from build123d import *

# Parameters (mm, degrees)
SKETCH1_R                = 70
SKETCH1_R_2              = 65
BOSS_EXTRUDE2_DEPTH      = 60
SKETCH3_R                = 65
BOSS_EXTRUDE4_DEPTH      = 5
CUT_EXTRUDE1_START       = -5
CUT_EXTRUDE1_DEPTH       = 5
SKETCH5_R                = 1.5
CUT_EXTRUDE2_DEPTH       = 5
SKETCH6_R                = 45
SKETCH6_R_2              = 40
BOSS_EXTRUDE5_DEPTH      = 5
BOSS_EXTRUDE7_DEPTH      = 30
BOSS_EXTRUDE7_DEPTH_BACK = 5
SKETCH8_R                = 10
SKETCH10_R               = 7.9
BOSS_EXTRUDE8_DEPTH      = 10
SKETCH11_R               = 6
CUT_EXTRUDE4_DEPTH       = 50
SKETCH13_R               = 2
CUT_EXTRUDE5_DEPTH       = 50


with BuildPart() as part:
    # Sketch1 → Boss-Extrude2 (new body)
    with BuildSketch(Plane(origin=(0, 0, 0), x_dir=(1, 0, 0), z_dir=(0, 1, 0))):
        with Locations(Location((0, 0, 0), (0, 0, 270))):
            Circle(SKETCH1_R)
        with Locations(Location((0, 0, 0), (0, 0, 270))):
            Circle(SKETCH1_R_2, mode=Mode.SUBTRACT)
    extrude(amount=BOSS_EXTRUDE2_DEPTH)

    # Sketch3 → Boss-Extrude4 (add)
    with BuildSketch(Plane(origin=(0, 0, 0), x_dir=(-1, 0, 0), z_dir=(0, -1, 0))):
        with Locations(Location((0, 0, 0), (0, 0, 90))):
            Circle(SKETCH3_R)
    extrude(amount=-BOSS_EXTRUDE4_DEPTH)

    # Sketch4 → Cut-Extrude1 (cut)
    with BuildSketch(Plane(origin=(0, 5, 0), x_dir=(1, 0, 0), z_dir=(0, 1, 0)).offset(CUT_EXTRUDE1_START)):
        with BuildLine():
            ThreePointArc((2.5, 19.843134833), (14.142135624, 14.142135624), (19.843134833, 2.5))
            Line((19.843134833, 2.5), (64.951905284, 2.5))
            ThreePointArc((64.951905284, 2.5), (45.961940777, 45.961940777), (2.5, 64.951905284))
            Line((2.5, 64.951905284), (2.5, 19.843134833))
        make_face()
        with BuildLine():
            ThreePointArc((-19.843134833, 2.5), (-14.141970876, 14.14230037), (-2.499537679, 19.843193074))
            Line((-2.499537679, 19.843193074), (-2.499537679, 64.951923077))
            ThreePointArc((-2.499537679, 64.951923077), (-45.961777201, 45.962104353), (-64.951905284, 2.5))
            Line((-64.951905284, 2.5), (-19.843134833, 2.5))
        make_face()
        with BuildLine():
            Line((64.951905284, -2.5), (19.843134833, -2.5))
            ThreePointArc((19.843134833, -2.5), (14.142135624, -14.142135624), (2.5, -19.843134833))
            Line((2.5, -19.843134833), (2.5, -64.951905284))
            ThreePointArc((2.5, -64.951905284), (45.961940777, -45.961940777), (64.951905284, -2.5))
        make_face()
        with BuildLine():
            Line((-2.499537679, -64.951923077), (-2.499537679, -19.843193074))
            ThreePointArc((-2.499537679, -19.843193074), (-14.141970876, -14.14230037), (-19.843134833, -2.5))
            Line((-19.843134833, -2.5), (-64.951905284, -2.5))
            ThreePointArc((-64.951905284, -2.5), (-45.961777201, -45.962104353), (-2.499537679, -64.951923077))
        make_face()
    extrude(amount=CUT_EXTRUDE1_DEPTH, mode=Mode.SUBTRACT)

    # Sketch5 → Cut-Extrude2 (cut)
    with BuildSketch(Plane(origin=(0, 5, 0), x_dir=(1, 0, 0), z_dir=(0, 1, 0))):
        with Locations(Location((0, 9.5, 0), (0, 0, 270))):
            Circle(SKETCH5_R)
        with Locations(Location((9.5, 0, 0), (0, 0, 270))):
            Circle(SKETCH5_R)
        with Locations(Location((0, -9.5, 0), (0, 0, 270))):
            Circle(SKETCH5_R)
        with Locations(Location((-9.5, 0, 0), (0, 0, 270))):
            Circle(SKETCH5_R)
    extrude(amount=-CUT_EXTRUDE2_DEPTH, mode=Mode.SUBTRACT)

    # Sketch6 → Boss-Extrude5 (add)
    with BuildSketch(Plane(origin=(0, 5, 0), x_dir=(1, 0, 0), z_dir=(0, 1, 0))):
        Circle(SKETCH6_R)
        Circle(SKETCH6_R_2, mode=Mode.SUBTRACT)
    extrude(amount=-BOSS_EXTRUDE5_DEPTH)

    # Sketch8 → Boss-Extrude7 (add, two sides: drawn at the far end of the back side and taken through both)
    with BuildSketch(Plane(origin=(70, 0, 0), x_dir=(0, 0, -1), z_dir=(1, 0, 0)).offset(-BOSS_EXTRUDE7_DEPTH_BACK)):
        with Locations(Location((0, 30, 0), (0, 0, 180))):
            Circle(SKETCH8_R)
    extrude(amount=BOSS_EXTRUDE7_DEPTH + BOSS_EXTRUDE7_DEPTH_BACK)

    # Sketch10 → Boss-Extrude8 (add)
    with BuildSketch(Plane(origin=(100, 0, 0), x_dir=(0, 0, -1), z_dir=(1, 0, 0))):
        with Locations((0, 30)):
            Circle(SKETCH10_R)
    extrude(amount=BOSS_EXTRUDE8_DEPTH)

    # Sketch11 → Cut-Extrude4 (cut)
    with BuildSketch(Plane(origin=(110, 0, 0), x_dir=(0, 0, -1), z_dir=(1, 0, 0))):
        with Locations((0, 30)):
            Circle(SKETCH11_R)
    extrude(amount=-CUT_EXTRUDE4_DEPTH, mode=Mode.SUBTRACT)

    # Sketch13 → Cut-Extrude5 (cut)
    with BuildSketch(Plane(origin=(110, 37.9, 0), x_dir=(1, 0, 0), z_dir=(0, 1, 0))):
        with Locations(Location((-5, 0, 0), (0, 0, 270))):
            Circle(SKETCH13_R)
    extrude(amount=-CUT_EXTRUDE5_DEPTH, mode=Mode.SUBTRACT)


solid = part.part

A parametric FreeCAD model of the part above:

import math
import FreeCAD as App
import Part
import Sketcher
from FreeCAD import Vector
Q = App.Units.Quantity

doc = App.newDocument("Part")
params = doc.addObject("Spreadsheet::Sheet", "Params")
for row, (alias, value) in enumerate([
    ("sketch1_diameter", "140 mm"),
    ("sketch1_diameter2", "130 mm"),
    ("pad1_length", "60 mm"),
    ("sketch2_diameter", "130 mm"),
    ("pad2_length", "5 mm"),
    ("sketch3_radius", "20 mm"),
    ("sketch3_radius2", "65 mm"),
    ("pocket1_length", "5 mm"),
    ("sketch4_diameter", "3 mm"),
    ("pocket2_length", "5 mm"),
    ("sketch5_diameter", "90 mm"),
    ("sketch5_diameter2", "80 mm"),
    ("pad3_length", "5 mm"),
    ("sketch6_diameter", "20 mm"),
    ("pad4_length", "30 mm"),
    ("pad4_length2", "5 mm"),
    ("sketch7_diameter", "15.8 mm"),
    ("pad5_length", "10 mm"),
    ("sketch8_diameter", "12 mm"),
    ("pocket3_length", "50 mm"),
    ("sketch9_diameter", "4 mm"),
    ("pocket4_length", "50 mm"),
], start=1):
    params.set(f"A{row}", alias)
    params.set(f"B{row}", "=" + value)
    params.setAlias(f"B{row}", alias)

body = doc.addObject("PartDesign::Body", "Body")

# Sketch on XZ plane
sketch1 = body.newObject("Sketcher::SketchObject", "Sketch")
sketch1.AttachmentSupport = (doc.getObject("XZ_Plane"), [""])
sketch1.MapMode = "FlatFace"
sketch1.addGeometry(Part.Circle(Vector(0, 0, 0), Vector(0, 0, 1), 70), False)
sketch1.addGeometry(Part.Circle(Vector(0, 0, 0), Vector(0, 0, 1), 65), False)
sketch1.addConstraint(Sketcher.Constraint("Coincident", 0, 3, -1, 1))
sketch1.addConstraint(Sketcher.Constraint("Coincident", 1, 3, -1, 1))
sketch1.addConstraint(Sketcher.Constraint("Diameter", 0, Q("140 mm")))
sketch1.addConstraint(Sketcher.Constraint("Diameter", 1, Q("130 mm")))
sketch1.setExpression("Constraints[2]", "Params.sketch1_diameter")
sketch1.setExpression("Constraints[3]", "Params.sketch1_diameter2")
pad1 = body.newObject("PartDesign::Pad", "Pad")
pad1.Profile = sketch1
pad1.setExpression("Length", "Params.pad1_length")
pad1.Reversed = True

# Sketch on XZ plane
sketch2 = body.newObject("Sketcher::SketchObject", "Sketch001")
sketch2.AttachmentSupport = (doc.getObject("XZ_Plane"), [""])
sketch2.MapMode = "FlatFace"
sketch2.addGeometry(Part.Circle(Vector(0, 0, 0), Vector(0, 0, 1), 65), False)
sketch2.addConstraint(Sketcher.Constraint("Coincident", 0, 3, -1, 1))
sketch2.addConstraint(Sketcher.Constraint("Diameter", 0, Q("130 mm")))
sketch2.setExpression("Constraints[1]", "Params.sketch2_diameter")
pad2 = body.newObject("PartDesign::Pad", "Pad001")
pad2.Profile = sketch2
pad2.setExpression("Length", "Params.pad2_length")
pad2.Reversed = True

# Sketch on XZ plane
sketch3 = body.newObject("Sketcher::SketchObject", "Sketch002")
sketch3.AttachmentSupport = (doc.getObject("XZ_Plane"), [""])
sketch3.MapMode = "FlatFace"
sketch3.addGeometry(Part.ArcOfCircle(Part.Circle(Vector(0, 0, 0), Vector(0, 0, 1), 20), math.radians(-83), math.radians(-7)), False)
sketch3.addGeometry(Part.LineSegment(Vector(20, -2, 0), Vector(65, -2, 0)), False)
sketch3.addGeometry(Part.ArcOfCircle(Part.Circle(Vector(0, 0, 0), Vector(0, 0, 1), 65), math.radians(-88), math.radians(-2)), False)
sketch3.addGeometry(Part.LineSegment(Vector(2, -65, 0), Vector(2, -20, 0)), False)
sketch3.addGeometry(Part.ArcOfCircle(Part.Circle(Vector(0, 0, 0), Vector(0, 0, 1), 20), math.radians(-173), math.radians(-97)), False)
sketch3.addGeometry(Part.LineSegment(Vector(-2, -20, 0), Vector(-2, -65, 0)), False)
sketch3.addGeometry(Part.ArcOfCircle(Part.Circle(Vector(0, 0, 0), Vector(0, 0, 1), 65), math.radians(-178), math.radians(-92)), False)
sketch3.addGeometry(Part.LineSegment(Vector(-65, -2, 0), Vector(-20, -2, 0)), False)
sketch3.addGeometry(Part.LineSegment(Vector(65, 2, 0), Vector(20, 2, 0)), False)
sketch3.addGeometry(Part.ArcOfCircle(Part.Circle(Vector(0, 0, 0), Vector(0, 0, 1), 20), math.radians(7), math.radians(83)), False)
sketch3.addGeometry(Part.LineSegment(Vector(2, 20, 0), Vector(2, 65, 0)), False)
sketch3.addGeometry(Part.ArcOfCircle(Part.Circle(Vector(0, 0, 0), Vector(0, 0, 1), 65), math.radians(2), math.radians(88)), False)
sketch3.addGeometry(Part.LineSegment(Vector(-2, 65, 0), Vector(-2, 20, 0)), False)
sketch3.addGeometry(Part.ArcOfCircle(Part.Circle(Vector(0, 0, 0), Vector(0, 0, 1), 20), math.radians(97), math.radians(173)), False)
sketch3.addGeometry(Part.LineSegment(Vector(-20, 2, 0), Vector(-65, 2, 0)), False)
sketch3.addGeometry(Part.ArcOfCircle(Part.Circle(Vector(0, 0, 0), Vector(0, 0, 1), 65), math.radians(92), math.radians(178)), False)
sketch3.addConstraint(Sketcher.Constraint("Coincident", 0, 2, 1, 1))
sketch3.addConstraint(Sketcher.Constraint("Coincident", 1, 2, 2, 2))
sketch3.addConstraint(Sketcher.Constraint("Coincident", 2, 1, 3, 1))
sketch3.addConstraint(Sketcher.Constraint("Coincident", 3, 2, 0, 1))
sketch3.addConstraint(Sketcher.Constraint("Coincident", 4, 2, 5, 1))
sketch3.addConstraint(Sketcher.Constraint("Coincident", 5, 2, 6, 2))
sketch3.addConstraint(Sketcher.Constraint("Coincident", 6, 1, 7, 1))
sketch3.addConstraint(Sketcher.Constraint("Coincident", 7, 2, 4, 1))
sketch3.addConstraint(Sketcher.Constraint("Coincident", 8, 2, 9, 1))
sketch3.addConstraint(Sketcher.Constraint("Coincident", 9, 2, 10, 1))
sketch3.addConstraint(Sketcher.Constraint("Coincident", 10, 2, 11, 2))
sketch3.addConstraint(Sketcher.Constraint("Coincident", 11, 1, 8, 1))
sketch3.addConstraint(Sketcher.Constraint("Coincident", 12, 2, 13, 1))
sketch3.addConstraint(Sketcher.Constraint("Coincident", 13, 2, 14, 1))
sketch3.addConstraint(Sketcher.Constraint("Coincident", 14, 2, 15, 2))
sketch3.addConstraint(Sketcher.Constraint("Coincident", 15, 1, 12, 1))
sketch3.addConstraint(Sketcher.Constraint("Horizontal", 1))
sketch3.addConstraint(Sketcher.Constraint("Vertical", 3))
sketch3.addConstraint(Sketcher.Constraint("Vertical", 5))
sketch3.addConstraint(Sketcher.Constraint("Horizontal", 7))
sketch3.addConstraint(Sketcher.Constraint("Horizontal", 8))
sketch3.addConstraint(Sketcher.Constraint("Vertical", 10))
sketch3.addConstraint(Sketcher.Constraint("Vertical", 12))
sketch3.addConstraint(Sketcher.Constraint("Horizontal", 14))
sketch3.addConstraint(Sketcher.Constraint("Coincident", 0, 3, -1, 1))
sketch3.addConstraint(Sketcher.Constraint("Coincident", 2, 3, -1, 1))
sketch3.addConstraint(Sketcher.Constraint("Coincident", 4, 3, -1, 1))
sketch3.addConstraint(Sketcher.Constraint("Coincident", 6, 3, -1, 1))
sketch3.addConstraint(Sketcher.Constraint("Coincident", 9, 3, -1, 1))
sketch3.addConstraint(Sketcher.Constraint("Coincident", 11, 3, -1, 1))
sketch3.addConstraint(Sketcher.Constraint("Coincident", 13, 3, -1, 1))
sketch3.addConstraint(Sketcher.Constraint("Coincident", 15, 3, -1, 1))
sketch3.addConstraint(Sketcher.Constraint("Equal", 0, 4))
sketch3.addConstraint(Sketcher.Constraint("Equal", 2, 6))
sketch3.addConstraint(Sketcher.Constraint("Equal", 4, 9))
sketch3.addConstraint(Sketcher.Constraint("Equal", 6, 11))
sketch3.addConstraint(Sketcher.Constraint("Equal", 9, 13))
sketch3.addConstraint(Sketcher.Constraint("Equal", 11, 15))
sketch3.addConstraint(Sketcher.Constraint("Horizontal", 1, 2, 6, 1))
sketch3.addConstraint(Sketcher.Constraint("Horizontal", 11, 1, 13, 2))
sketch3.addConstraint(Sketcher.Constraint("Vertical", 0, 2, 8, 2))
sketch3.addConstraint(Sketcher.Constraint("Vertical", 3, 2, 9, 2))
sketch3.addConstraint(Sketcher.Constraint("Vertical", 5, 2, 12, 2))
sketch3.addConstraint(Sketcher.Constraint("Equal", 14, 3))
sketch3.addConstraint(Sketcher.Constraint("Radius", 0, Q("20 mm")))
sketch3.addConstraint(Sketcher.Constraint("Radius", 2, Q("65 mm")))
sketch3.addConstraint(Sketcher.Constraint("DistanceY", 0, 2, 8, 2, Q("5 mm")))
sketch3.addConstraint(Sketcher.Constraint("DistanceY", 5, 2, 5, 1, Q("45.10873 mm")))
sketch3.setExpression("Constraints[44]", "Params.sketch3_radius")
sketch3.setExpression("Constraints[45]", "Params.sketch3_radius2")
pocket1 = body.newObject("PartDesign::Pocket", "Pocket")
pocket1.Profile = sketch3
pocket1.setExpression("Length", "Params.pocket1_length")

# Sketch on XZ plane
sketch4 = body.newObject("Sketcher::SketchObject", "Sketch003")
sketch4.AttachmentSupport = (doc.getObject("XZ_Plane"), [""])
sketch4.MapMode = "FlatFace"
sketch4.AttachmentOffset = App.Placement(Vector(0, 0, -5), App.Rotation())
sketch4.addGeometry(Part.Circle(Vector(0, -9.5, 0), Vector(0, 0, 1), 1.5), False)
sketch4.addGeometry(Part.Circle(Vector(9.5, 0, 0), Vector(0, 0, 1), 1.5), False)
sketch4.addGeometry(Part.Circle(Vector(0, 9.5, 0), Vector(0, 0, 1), 1.5), False)
sketch4.addGeometry(Part.Circle(Vector(-9.5, 0, 0), Vector(0, 0, 1), 1.5), False)
sketch4.addConstraint(Sketcher.Constraint("Equal", 0, 1))
sketch4.addConstraint(Sketcher.Constraint("Equal", 1, 2))
sketch4.addConstraint(Sketcher.Constraint("Equal", 2, 3))
sketch4.addConstraint(Sketcher.Constraint("Symmetric", 0, 3, 2, 3, -1, 1))
sketch4.addConstraint(Sketcher.Constraint("Symmetric", 1, 3, 3, 3, -1, 1))
sketch4.addConstraint(Sketcher.Constraint("PointOnObject", 0, 3, -2))
sketch4.addConstraint(Sketcher.Constraint("PointOnObject", 1, 3, -1))
sketch4.addConstraint(Sketcher.Constraint("Diameter", 0, Q("3 mm")))
sketch4.addConstraint(Sketcher.Constraint("DistanceY", 0, 3, 2, 3, Q("19 mm")))
sketch4.addConstraint(Sketcher.Constraint("DistanceX", 3, 3, 1, 3, Q("19 mm")))
sketch4.setExpression("Constraints[7]", "Params.sketch4_diameter")
pocket2 = body.newObject("PartDesign::Pocket", "Pocket001")
pocket2.Profile = sketch4
pocket2.setExpression("Length", "Params.pocket2_length")
pocket2.Reversed = True

# Sketch on XZ plane
sketch5 = body.newObject("Sketcher::SketchObject", "Sketch004")
sketch5.AttachmentSupport = (doc.getObject("XZ_Plane"), [""])
sketch5.MapMode = "FlatFace"
sketch5.AttachmentOffset = App.Placement(Vector(0, 0, -5), App.Rotation())
sketch5.addGeometry(Part.Circle(Vector(0, 0, 0), Vector(0, 0, 1), 45), False)
sketch5.addGeometry(Part.Circle(Vector(0, 0, 0), Vector(0, 0, 1), 40), False)
sketch5.addConstraint(Sketcher.Constraint("Coincident", 0, 3, -1, 1))
sketch5.addConstraint(Sketcher.Constraint("Coincident", 1, 3, -1, 1))
sketch5.addConstraint(Sketcher.Constraint("Diameter", 0, Q("90 mm")))
sketch5.addConstraint(Sketcher.Constraint("Diameter", 1, Q("80 mm")))
sketch5.setExpression("Constraints[2]", "Params.sketch5_diameter")
sketch5.setExpression("Constraints[3]", "Params.sketch5_diameter2")
pad3 = body.newObject("PartDesign::Pad", "Pad002")
pad3.Profile = sketch5
pad3.setExpression("Length", "Params.pad3_length")

# Sketch on YZ plane
sketch6 = body.newObject("Sketcher::SketchObject", "Sketch005")
sketch6.AttachmentSupport = (doc.getObject("YZ_Plane"), [""])
sketch6.MapMode = "FlatFace"
sketch6.AttachmentOffset = App.Placement(Vector(0, 0, 70), App.Rotation())
sketch6.addGeometry(Part.Circle(Vector(30, 0, 0), Vector(0, 0, 1), 10), False)
sketch6.addConstraint(Sketcher.Constraint("PointOnObject", 0, 3, -1))
sketch6.addConstraint(Sketcher.Constraint("Diameter", 0, Q("20 mm")))
sketch6.addConstraint(Sketcher.Constraint("DistanceX", -1, 1, 0, 3, Q("30 mm")))
sketch6.setExpression("Constraints[1]", "Params.sketch6_diameter")
pad4 = body.newObject("PartDesign::Pad", "Pad003")
pad4.Profile = sketch6
pad4.Type = "TwoLengths"
pad4.setExpression("Length", "Params.pad4_length")
pad4.setExpression("Length2", "Params.pad4_length2")

# Sketch on YZ plane
sketch7 = body.newObject("Sketcher::SketchObject", "Sketch006")
sketch7.AttachmentSupport = (doc.getObject("YZ_Plane"), [""])
sketch7.MapMode = "FlatFace"
sketch7.AttachmentOffset = App.Placement(Vector(0, 0, 100), App.Rotation())
sketch7.addGeometry(Part.Circle(Vector(30, 0, 0), Vector(0, 0, 1), 8), False)
sketch7.addConstraint(Sketcher.Constraint("PointOnObject", 0, 3, -1))
sketch7.addConstraint(Sketcher.Constraint("Diameter", 0, Q("15.8 mm")))
sketch7.addConstraint(Sketcher.Constraint("DistanceX", -1, 1, 0, 3, Q("30 mm")))
sketch7.setExpression("Constraints[1]", "Params.sketch7_diameter")
pad5 = body.newObject("PartDesign::Pad", "Pad004")
pad5.Profile = sketch7
pad5.setExpression("Length", "Params.pad5_length")

# Sketch on YZ plane
sketch8 = body.newObject("Sketcher::SketchObject", "Sketch007")
sketch8.AttachmentSupport = (doc.getObject("YZ_Plane"), [""])
sketch8.MapMode = "FlatFace"
sketch8.AttachmentOffset = App.Placement(Vector(0, 0, 110), App.Rotation())
sketch8.addGeometry(Part.Circle(Vector(30, 0, 0), Vector(0, 0, 1), 6), False)
sketch8.addConstraint(Sketcher.Constraint("PointOnObject", 0, 3, -1))
sketch8.addConstraint(Sketcher.Constraint("Diameter", 0, Q("12 mm")))
sketch8.addConstraint(Sketcher.Constraint("DistanceX", -1, 1, 0, 3, Q("30 mm")))
sketch8.setExpression("Constraints[1]", "Params.sketch8_diameter")
pocket3 = body.newObject("PartDesign::Pocket", "Pocket002")
pocket3.Profile = sketch8
pocket3.setExpression("Length", "Params.pocket3_length")

# Sketch on XZ plane
sketch9 = body.newObject("Sketcher::SketchObject", "Sketch008")
sketch9.AttachmentSupport = (doc.getObject("XZ_Plane"), [""])
sketch9.MapMode = "FlatFace"
sketch9.AttachmentOffset = App.Placement(Vector(0, 0, -37.9), App.Rotation())
sketch9.addGeometry(Part.Circle(Vector(105, 0, 0), Vector(0, 0, 1), 2), False)
sketch9.addConstraint(Sketcher.Constraint("PointOnObject", 0, 3, -1))
sketch9.addConstraint(Sketcher.Constraint("Diameter", 0, Q("4 mm")))
sketch9.addConstraint(Sketcher.Constraint("DistanceX", -1, 1, 0, 3, Q("105 mm")))
sketch9.setExpression("Constraints[1]", "Params.sketch9_diameter")
pocket4 = body.newObject("PartDesign::Pocket", "Pocket003")
pocket4.Profile = sketch9
pocket4.setExpression("Length", "Params.pocket4_length")
pocket4.Reversed = True

doc.recompute()
